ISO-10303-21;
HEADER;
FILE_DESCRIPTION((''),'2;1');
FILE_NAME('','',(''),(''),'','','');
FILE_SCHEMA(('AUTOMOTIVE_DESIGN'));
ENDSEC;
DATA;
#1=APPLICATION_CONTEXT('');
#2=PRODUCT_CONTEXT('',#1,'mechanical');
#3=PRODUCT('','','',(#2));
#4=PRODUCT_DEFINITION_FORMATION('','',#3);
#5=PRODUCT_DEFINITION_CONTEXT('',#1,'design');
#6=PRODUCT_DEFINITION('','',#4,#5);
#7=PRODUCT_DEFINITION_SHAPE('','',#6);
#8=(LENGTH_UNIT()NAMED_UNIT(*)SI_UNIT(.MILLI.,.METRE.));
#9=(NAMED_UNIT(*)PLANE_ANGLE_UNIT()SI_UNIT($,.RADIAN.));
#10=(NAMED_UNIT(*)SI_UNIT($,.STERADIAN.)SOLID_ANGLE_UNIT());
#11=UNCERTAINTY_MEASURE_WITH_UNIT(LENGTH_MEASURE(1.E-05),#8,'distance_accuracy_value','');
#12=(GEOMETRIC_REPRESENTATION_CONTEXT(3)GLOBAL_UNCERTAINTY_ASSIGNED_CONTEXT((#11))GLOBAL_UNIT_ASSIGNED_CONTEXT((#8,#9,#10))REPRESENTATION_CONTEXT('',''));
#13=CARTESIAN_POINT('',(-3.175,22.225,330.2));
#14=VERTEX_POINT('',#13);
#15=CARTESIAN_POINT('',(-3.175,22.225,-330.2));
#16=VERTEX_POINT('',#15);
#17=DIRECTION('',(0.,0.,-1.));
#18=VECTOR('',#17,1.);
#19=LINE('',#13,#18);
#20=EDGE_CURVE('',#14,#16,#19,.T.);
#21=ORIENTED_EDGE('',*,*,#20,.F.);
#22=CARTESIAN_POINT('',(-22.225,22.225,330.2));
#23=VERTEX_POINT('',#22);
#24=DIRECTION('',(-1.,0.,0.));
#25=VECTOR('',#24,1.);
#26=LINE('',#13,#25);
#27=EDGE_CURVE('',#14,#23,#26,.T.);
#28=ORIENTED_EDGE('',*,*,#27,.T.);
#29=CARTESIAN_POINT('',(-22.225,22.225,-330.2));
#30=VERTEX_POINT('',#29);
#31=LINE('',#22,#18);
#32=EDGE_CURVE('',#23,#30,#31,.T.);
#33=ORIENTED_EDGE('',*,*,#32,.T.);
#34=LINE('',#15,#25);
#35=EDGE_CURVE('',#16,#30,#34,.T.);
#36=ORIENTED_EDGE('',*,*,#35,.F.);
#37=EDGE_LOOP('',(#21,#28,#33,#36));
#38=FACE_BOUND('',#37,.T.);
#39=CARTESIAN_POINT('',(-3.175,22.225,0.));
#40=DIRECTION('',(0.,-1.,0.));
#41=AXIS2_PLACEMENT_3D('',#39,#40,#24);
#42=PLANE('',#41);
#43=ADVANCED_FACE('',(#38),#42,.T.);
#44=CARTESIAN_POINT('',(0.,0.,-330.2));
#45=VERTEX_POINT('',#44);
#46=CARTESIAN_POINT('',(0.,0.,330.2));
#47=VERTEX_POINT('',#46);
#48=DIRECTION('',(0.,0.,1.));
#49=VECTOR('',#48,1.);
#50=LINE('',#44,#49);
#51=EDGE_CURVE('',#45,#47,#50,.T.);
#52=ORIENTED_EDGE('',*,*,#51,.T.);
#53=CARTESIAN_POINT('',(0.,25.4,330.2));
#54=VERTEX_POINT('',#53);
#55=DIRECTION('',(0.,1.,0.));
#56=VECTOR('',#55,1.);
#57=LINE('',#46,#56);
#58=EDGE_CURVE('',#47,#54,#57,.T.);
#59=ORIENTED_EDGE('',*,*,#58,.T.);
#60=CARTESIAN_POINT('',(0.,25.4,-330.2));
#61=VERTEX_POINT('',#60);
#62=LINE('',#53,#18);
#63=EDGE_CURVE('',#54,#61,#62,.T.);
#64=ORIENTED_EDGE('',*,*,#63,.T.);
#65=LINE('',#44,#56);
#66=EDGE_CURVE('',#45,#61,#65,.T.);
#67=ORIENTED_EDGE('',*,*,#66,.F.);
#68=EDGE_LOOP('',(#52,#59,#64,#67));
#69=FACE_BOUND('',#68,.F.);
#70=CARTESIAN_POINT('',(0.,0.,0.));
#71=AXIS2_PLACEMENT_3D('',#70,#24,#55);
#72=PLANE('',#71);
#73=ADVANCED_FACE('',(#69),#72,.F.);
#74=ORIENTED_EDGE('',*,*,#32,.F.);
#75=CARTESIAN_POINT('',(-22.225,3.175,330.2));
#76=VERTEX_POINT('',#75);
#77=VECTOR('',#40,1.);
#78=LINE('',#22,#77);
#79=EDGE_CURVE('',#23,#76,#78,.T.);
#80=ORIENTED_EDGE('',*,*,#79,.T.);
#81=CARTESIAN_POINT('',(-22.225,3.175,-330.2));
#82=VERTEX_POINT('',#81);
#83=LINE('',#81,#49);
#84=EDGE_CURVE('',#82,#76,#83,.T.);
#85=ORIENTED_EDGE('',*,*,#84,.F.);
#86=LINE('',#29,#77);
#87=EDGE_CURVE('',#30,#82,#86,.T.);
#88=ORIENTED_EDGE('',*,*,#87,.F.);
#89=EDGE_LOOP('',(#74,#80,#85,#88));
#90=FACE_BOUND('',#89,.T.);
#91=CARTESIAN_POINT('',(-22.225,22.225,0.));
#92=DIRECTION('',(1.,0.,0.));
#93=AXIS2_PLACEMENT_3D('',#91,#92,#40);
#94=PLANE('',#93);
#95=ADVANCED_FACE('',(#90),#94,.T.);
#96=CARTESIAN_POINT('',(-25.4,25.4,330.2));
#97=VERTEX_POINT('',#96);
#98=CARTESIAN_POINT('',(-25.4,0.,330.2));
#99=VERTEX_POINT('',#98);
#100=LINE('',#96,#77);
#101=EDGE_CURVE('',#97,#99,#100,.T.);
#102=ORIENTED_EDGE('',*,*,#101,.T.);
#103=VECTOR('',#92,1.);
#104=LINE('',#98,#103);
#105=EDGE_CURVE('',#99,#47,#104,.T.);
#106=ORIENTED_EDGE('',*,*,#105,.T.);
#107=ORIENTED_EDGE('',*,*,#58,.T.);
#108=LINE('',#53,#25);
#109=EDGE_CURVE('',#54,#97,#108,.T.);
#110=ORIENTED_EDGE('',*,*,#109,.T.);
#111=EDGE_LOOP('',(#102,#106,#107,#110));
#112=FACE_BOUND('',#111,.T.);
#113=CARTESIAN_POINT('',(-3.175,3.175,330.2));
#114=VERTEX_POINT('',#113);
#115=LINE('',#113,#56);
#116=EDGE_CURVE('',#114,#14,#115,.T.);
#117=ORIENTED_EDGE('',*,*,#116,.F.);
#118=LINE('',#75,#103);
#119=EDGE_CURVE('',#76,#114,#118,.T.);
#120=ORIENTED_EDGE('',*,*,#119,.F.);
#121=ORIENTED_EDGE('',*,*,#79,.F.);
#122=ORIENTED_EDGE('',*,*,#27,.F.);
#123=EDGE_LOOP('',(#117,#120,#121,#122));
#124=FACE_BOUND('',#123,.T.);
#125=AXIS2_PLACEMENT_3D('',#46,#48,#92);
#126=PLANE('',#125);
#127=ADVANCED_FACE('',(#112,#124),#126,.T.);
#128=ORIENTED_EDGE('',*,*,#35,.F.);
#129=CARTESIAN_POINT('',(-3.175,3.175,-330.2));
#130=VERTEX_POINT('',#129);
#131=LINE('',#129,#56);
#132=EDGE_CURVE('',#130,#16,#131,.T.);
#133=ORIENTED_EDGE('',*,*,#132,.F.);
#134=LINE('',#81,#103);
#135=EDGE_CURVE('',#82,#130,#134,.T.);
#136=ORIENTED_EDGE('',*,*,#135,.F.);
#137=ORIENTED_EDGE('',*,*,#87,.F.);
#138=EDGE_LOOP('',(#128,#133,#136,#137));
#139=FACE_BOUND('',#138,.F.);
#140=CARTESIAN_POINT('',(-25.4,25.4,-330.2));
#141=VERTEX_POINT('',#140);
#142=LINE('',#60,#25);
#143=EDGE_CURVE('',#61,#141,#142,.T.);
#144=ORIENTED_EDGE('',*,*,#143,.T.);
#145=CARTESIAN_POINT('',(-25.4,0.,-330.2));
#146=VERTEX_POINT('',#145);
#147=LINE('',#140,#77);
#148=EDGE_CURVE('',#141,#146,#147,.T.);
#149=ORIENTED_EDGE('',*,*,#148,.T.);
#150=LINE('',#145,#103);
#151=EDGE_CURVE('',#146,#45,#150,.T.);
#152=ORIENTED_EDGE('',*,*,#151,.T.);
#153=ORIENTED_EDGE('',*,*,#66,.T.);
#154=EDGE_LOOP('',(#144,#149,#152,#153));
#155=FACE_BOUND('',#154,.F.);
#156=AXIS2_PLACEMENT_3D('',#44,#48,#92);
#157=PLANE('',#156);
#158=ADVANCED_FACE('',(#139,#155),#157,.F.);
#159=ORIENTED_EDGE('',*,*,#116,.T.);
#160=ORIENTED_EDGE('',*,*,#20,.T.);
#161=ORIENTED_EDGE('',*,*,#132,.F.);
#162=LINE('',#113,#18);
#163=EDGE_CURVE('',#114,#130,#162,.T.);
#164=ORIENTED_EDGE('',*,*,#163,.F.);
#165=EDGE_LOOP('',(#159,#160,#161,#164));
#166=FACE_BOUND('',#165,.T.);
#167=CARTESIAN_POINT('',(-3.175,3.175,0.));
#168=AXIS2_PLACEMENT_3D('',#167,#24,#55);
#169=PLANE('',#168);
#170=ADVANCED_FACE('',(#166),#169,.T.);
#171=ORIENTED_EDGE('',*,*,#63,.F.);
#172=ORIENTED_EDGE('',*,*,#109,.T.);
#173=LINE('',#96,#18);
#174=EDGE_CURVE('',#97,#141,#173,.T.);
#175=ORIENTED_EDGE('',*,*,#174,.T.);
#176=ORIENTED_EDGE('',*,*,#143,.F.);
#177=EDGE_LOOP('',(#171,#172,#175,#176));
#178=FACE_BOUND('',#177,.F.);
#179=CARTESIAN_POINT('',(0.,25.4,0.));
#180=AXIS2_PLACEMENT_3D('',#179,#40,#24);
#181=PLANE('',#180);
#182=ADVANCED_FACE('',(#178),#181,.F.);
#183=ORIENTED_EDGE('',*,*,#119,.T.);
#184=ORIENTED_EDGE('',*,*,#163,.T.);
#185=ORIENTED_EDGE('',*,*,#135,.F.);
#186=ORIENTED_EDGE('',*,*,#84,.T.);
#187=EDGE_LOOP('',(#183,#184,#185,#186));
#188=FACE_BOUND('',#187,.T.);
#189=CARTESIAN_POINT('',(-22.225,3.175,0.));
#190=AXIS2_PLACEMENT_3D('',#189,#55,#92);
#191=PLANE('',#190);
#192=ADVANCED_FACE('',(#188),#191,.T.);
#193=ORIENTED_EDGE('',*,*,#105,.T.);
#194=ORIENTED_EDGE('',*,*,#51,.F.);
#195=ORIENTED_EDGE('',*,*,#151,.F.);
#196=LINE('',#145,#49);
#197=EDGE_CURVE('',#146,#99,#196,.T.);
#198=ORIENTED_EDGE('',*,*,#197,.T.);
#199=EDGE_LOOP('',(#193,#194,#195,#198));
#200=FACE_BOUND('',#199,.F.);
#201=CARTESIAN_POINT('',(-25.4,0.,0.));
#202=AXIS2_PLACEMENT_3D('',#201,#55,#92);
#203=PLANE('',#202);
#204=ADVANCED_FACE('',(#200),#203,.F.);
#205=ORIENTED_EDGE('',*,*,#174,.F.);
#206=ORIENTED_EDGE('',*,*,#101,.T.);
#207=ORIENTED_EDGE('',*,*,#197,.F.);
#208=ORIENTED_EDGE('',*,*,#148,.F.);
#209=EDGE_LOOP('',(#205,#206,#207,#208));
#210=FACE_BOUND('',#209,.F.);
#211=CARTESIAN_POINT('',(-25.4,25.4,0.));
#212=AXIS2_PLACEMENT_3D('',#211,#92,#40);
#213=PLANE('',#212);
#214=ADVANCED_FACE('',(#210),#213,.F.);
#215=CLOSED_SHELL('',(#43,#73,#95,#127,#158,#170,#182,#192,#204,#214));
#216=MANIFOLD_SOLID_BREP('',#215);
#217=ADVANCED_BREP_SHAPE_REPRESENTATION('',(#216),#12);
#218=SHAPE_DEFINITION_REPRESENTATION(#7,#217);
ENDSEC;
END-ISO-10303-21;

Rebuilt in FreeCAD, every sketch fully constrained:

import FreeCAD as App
import Part
import Sketcher
Q = App.Units.Quantity

doc = App.newDocument("Part")
body = doc.addObject("PartDesign::Body", "Body")

sketch1 = body.newObject("Sketcher::SketchObject", "Sketch")
sketch1.AttachmentSupport = (doc.getObject("XY_Plane"), [""])
sketch1.MapMode = "FlatFace"
sketch1.addGeometry(Part.LineSegment(App.Vector(-25, 25, 0), App.Vector(-25, 0, 0)), False)
sketch1.addGeometry(Part.LineSegment(App.Vector(-25, 0, 0), App.Vector(0, 0, 0)), False)
sketch1.addGeometry(Part.LineSegment(App.Vector(0, 0, 0), App.Vector(0, 25, 0)), False)
sketch1.addGeometry(Part.LineSegment(App.Vector(0, 25, 0), App.Vector(-25, 25, 0)), False)
sketch1.addGeometry(Part.LineSegment(App.Vector(-3, 3, 0), App.Vector(-22, 3, 0)), False)
sketch1.addGeometry(Part.LineSegment(App.Vector(-22, 3, 0), App.Vector(-22, 22, 0)), False)
sketch1.addGeometry(Part.LineSegment(App.Vector(-22, 22, 0), App.Vector(-3, 22, 0)), False)
sketch1.addGeometry(Part.LineSegment(App.Vector(-3, 22, 0), App.Vector(-3, 3, 0)), False)
sketch1.addConstraint(Sketcher.Constraint("Coincident", 0, 2, 1, 1))
sketch1.addConstraint(Sketcher.Constraint("Coincident", 1, 2, 2, 1))
sketch1.addConstraint(Sketcher.Constraint("Coincident", 2, 2, 3, 1))
sketch1.addConstraint(Sketcher.Constraint("Coincident", 3, 2, 0, 1))
sketch1.addConstraint(Sketcher.Constraint("Coincident", 4, 2, 5, 1))
sketch1.addConstraint(Sketcher.Constraint("Coincident", 5, 2, 6, 1))
sketch1.addConstraint(Sketcher.Constraint("Coincident", 6, 2, 7, 1))
sketch1.addConstraint(Sketcher.Constraint("Coincident", 7, 2, 4, 1))
sketch1.addConstraint(Sketcher.Constraint("Vertical", 0))
sketch1.addConstraint(Sketcher.Constraint("Horizontal", 1))
sketch1.addConstraint(Sketcher.Constraint("Vertical", 2))
sketch1.addConstraint(Sketcher.Constraint("Horizontal", 3))
sketch1.addConstraint(Sketcher.Constraint("Horizontal", 4))
sketch1.addConstraint(Sketcher.Constraint("Vertical", 5))
sketch1.addConstraint(Sketcher.Constraint("Horizontal", 6))
sketch1.addConstraint(Sketcher.Constraint("Vertical", 7))
sketch1.addConstraint(Sketcher.Constraint("Coincident", 1, 2, -1, 1))
sketch1.addConstraint(Sketcher.Constraint("Equal", 3, 0))
sketch1.addConstraint(Sketcher.Constraint("Equal", 6, 5))
sketch1.addConstraint(Sketcher.Constraint("DistanceX", 1, 1, 1, 2, Q("1 in")))
sketch1.addConstraint(Sketcher.Constraint("DistanceX", 4, 2, 4, 1, Q("0.75 in")))
sketch1.addConstraint(Sketcher.Constraint("DistanceX", 4, 2, -1, 1, Q("0.875 in")))
sketch1.addConstraint(Sketcher.Constraint("DistanceY", -1, 1, 4, 2, Q("0.125 in")))
pad1 = body.newObject("PartDesign::Pad", "Pad")
pad1.Profile = sketch1
pad1.Length = Q("26 in")
pad1.Midplane = True

doc.recompute()
